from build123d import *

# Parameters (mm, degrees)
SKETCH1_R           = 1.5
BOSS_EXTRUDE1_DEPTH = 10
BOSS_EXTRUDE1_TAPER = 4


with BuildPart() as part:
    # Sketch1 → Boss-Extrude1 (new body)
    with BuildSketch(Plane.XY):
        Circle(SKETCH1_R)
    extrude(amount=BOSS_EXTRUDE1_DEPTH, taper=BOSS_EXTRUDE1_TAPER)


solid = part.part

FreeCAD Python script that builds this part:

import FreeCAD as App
import Part
import Sketcher
Q = App.Units.Quantity

doc = App.newDocument("Part")
body = doc.addObject("PartDesign::Body", "Body")

sketch1 = body.newObject("Sketcher::SketchObject", "Sketch")
sketch1.AttachmentSupport = (doc.getObject("XY_Plane"), [""])
sketch1.MapMode = "FlatFace"
sketch1.addGeometry(Part.Circle(App.Vector(0, 0, 0), App.Vector(0, 0, 1), 1.5), False)
sketch1.addConstraint(Sketcher.Constraint("Coincident", 0, 3, -1, 1))
sketch1.addConstraint(Sketcher.Constraint("Diameter", 0, Q("3 mm")))
pad1 = body.newObject("PartDesign::Pad", "Pad")
pad1.Profile = sketch1
pad1.Length = 10
pad1.TaperAngle = -4

doc.recompute()
